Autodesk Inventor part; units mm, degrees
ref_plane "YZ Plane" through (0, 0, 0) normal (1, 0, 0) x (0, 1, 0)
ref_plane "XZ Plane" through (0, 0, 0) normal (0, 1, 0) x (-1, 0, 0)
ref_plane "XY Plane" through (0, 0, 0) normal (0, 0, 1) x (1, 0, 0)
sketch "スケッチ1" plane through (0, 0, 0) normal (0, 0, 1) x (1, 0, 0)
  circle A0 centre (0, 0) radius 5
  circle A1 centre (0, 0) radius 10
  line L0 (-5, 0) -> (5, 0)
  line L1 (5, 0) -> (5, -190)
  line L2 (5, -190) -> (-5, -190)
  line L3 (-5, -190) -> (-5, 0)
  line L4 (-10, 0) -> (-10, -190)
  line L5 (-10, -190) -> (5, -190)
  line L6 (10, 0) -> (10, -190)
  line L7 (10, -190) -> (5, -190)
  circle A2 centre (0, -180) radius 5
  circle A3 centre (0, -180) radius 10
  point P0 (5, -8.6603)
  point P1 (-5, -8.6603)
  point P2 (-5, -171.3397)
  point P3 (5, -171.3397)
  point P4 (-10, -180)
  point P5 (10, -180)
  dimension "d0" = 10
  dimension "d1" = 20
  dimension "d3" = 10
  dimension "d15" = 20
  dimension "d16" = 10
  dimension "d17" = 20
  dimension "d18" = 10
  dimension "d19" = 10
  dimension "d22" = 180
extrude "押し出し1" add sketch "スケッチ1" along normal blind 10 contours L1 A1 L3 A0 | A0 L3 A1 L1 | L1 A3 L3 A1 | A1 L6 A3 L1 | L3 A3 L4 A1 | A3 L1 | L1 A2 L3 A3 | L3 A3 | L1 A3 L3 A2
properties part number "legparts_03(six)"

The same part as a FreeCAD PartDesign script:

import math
import FreeCAD as App
import Part
import Sketcher
Q = App.Units.Quantity

doc = App.newDocument("Part")
body = doc.addObject("PartDesign::Body", "Body")

# Sketch on XY plane
sketch1 = body.newObject("Sketcher::SketchObject", "Sketch")
sketch1.AttachmentSupport = (doc.getObject("XY_Plane"), [""])
sketch1.MapMode = "FlatFace"
sketch1.addGeometry([
    Part.ArcOfCircle(Part.Circle(App.Vector(0, 0, 0), App.Vector(0, 0, 1), 10), math.radians(0), math.radians(180)),  # 0
    Part.LineSegment(App.Vector(-10, 0, 0), App.Vector(-10, -180, 0)),  # 1
    Part.ArcOfCircle(Part.Circle(App.Vector(0, -180, 0), App.Vector(0, 0, 1), 10), math.radians(180), math.radians(360)),  # 2
    Part.LineSegment(App.Vector(10, -180, 0), App.Vector(10, 0, 0)),  # 3
    Part.Circle(App.Vector(0, 0, 0), App.Vector(0, 0, 1), 5),  # 4
    Part.Circle(App.Vector(0, -180, 0), App.Vector(0, 0, 1), 5),  # 5
], False)
sketch1.addConstraint([
    Sketcher.Constraint("Tangent", 0, 2, 1, 1),
    Sketcher.Constraint("Tangent", 1, 2, 2, 1),
    Sketcher.Constraint("Tangent", 2, 2, 3, 1),
    Sketcher.Constraint("Tangent", 3, 2, 0, 1),
    Sketcher.Constraint("Vertical", 1),
    Sketcher.Constraint("Vertical", 3),
    Sketcher.Constraint("Coincident", 0, 3, -1, 1),
    Sketcher.Constraint("Coincident", 4, 3, -1, 1),
    Sketcher.Constraint("Coincident", 5, 3, 2, 3),
    Sketcher.Constraint("Equal", 4, 5),
    Sketcher.Constraint("Diameter", 4, Q("10 mm")),
    Sketcher.Constraint("Radius", 0, Q("10 mm")),
    Sketcher.Constraint("DistanceY", 1, 2, 1, 1, Q("180 mm")),
])
pad1 = body.newObject("PartDesign::Pad", "Pad")
pad1.Profile = sketch1
pad1.Length = 10

doc.recompute()
